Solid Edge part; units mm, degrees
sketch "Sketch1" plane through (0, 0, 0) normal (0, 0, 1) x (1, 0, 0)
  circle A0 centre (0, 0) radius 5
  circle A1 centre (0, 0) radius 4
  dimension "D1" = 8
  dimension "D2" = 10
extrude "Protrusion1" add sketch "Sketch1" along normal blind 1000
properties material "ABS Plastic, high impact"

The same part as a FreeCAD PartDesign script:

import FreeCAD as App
import Part
import Sketcher

V = App.Vector
Q = App.Units.Quantity

doc = App.newDocument("Part")
body = doc.addObject("PartDesign::Body", "Body")

sketch1 = body.newObject("Sketcher::SketchObject", "Sketch")
sketch1.AttachmentSupport = (doc.getObject("XY_Plane"), [""])
sketch1.MapMode = "FlatFace"
sketch1.addGeometry([
    Part.Circle(V(0, 0, 0), V(0, 0, 1), 5),
    Part.Circle(V(0, 0, 0), V(0, 0, 1), 4),
], False)
sketch1.addConstraint([
    Sketcher.Constraint("Coincident", 0, 3, -1, 1),
    Sketcher.Constraint("Coincident", 1, 3, -1, 1),
    Sketcher.Constraint("Diameter", 0, Q("10 mm")),
    Sketcher.Constraint("Diameter", 1, Q("8 mm")),
])
pad1 = body.newObject("PartDesign::Pad", "Pad")
pad1.Profile = sketch1
pad1.Length = 1000

doc.recompute()
